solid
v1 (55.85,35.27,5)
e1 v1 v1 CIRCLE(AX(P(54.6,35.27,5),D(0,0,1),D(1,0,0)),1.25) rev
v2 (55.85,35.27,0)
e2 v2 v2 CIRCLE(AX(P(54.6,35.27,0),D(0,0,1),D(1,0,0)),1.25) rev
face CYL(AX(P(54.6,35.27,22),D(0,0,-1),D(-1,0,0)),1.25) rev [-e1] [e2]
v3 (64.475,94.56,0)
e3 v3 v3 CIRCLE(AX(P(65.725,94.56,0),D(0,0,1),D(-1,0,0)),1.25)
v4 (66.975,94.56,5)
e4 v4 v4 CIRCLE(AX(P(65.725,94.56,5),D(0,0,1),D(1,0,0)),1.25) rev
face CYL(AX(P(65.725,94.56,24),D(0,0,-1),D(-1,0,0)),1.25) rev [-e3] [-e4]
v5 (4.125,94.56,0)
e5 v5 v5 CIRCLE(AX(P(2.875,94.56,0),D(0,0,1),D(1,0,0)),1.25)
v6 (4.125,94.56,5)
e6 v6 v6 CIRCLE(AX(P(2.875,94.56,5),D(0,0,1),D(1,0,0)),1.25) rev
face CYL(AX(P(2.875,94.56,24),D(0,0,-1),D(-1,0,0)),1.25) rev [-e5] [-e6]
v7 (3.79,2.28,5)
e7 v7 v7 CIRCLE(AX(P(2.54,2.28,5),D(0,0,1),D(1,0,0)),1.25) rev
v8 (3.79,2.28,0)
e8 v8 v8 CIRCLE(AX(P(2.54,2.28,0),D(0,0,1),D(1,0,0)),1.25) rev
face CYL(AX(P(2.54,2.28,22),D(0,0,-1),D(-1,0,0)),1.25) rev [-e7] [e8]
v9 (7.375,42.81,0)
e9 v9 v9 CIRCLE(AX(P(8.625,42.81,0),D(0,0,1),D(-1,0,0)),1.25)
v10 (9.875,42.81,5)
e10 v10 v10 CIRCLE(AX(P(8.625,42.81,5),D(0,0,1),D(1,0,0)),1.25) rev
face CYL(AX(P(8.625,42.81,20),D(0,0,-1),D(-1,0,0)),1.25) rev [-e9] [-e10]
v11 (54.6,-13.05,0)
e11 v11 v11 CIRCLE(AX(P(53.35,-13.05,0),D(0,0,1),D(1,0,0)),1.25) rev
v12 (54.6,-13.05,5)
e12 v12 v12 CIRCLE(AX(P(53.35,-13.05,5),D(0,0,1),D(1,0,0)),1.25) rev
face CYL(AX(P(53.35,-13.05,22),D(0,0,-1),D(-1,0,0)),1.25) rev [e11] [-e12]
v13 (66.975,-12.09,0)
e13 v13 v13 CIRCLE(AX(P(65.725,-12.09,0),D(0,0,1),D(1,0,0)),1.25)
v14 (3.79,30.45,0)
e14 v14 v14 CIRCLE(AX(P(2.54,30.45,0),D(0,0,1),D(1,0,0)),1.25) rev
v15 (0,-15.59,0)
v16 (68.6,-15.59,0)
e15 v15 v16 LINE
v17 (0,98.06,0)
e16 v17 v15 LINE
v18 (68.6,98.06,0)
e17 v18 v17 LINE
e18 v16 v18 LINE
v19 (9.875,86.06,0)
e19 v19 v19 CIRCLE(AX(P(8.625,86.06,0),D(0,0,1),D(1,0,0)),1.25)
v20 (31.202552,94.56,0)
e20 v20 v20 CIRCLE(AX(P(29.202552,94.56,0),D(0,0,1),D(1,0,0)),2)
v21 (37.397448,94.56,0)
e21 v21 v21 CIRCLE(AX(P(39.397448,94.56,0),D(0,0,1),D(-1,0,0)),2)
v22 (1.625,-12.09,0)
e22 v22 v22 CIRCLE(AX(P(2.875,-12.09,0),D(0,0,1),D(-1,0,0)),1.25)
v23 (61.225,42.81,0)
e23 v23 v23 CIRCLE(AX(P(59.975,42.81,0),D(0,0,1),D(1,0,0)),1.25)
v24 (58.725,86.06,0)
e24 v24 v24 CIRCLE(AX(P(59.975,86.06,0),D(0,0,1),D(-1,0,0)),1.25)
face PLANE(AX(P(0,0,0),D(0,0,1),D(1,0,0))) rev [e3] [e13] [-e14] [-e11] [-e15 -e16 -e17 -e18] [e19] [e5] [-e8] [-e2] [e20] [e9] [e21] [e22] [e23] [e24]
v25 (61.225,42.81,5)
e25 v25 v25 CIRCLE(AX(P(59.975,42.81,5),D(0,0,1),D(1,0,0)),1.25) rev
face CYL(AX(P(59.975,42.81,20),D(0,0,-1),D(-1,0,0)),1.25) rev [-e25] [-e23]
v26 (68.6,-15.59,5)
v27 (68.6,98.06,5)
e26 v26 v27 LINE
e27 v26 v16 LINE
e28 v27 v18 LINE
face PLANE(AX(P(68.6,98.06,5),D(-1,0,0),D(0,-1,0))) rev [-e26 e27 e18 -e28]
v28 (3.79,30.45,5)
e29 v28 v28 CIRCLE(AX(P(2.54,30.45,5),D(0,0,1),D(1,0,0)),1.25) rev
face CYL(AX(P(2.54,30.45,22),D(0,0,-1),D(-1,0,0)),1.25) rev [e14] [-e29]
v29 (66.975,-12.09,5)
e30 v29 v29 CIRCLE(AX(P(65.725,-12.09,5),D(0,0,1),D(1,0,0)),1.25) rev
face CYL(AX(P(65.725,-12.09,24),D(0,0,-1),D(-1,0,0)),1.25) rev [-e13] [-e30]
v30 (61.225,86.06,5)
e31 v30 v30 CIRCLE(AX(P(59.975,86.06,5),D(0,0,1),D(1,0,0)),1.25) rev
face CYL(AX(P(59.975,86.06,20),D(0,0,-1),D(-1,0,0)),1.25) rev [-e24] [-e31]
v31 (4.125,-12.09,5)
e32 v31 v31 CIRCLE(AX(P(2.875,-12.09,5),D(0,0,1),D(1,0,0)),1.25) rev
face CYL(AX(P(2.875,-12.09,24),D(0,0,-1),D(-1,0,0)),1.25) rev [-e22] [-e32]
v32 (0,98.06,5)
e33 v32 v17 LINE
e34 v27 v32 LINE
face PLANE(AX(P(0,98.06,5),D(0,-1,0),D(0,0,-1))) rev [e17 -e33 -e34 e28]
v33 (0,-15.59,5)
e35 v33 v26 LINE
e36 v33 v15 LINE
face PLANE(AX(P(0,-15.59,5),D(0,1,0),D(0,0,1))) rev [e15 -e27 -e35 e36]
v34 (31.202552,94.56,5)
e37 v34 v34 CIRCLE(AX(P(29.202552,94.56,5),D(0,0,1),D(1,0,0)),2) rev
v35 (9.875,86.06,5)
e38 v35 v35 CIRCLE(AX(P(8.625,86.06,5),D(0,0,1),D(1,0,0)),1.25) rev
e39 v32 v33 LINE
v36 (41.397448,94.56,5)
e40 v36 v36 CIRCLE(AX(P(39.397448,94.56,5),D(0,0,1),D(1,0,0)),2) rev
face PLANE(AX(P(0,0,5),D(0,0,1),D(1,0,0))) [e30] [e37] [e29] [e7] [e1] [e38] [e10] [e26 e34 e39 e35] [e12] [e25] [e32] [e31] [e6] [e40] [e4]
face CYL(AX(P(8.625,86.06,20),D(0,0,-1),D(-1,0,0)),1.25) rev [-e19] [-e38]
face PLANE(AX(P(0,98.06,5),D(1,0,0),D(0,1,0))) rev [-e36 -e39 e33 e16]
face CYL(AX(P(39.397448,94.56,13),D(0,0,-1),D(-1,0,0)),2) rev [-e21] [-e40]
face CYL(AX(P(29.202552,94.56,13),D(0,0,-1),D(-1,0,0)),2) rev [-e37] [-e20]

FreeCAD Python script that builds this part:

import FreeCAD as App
import Part
import Sketcher
Q = App.Units.Quantity


def add_polygon(sketch, points):
    """Adds a closed chain of lines whose ends are joined by coincident constraints."""
    first, n = sketch.GeometryCount, len(points)
    for a, b in zip(points, points[1:] + points[:1]):
        sketch.addGeometry(Part.LineSegment(App.Vector(*a, 0), App.Vector(*b, 0)), False)
    for i in range(n):
        sketch.addConstraint(Sketcher.Constraint("Coincident", first + i, 2, first + (i + 1) % n, 1))

doc = App.newDocument("Part")
body = doc.addObject("PartDesign::Body", "Body")

sketch1 = body.newObject("Sketcher::SketchObject", "Sketch")
sketch1.AttachmentSupport = (doc.getObject("XY_Plane"), [""])
sketch1.MapMode = "FlatFace"
add_polygon(sketch1, [(0, 98), (0, -16), (69, -16), (69, 98)])
sketch1.addConstraint([
    Sketcher.Constraint("Vertical", 0),
    Sketcher.Constraint("Horizontal", 1),
    Sketcher.Constraint("Vertical", 2),
    Sketcher.Constraint("Horizontal", 3),
    Sketcher.Constraint("PointOnObject", 0, 2, -2),
    Sketcher.Constraint("DistanceX", 1, 1, 1, 2, Q("68.6 mm")),
    Sketcher.Constraint("DistanceY", 0, 2, 0, 1, Q("113.65 mm")),
    Sketcher.Constraint("DistanceY", 0, 2, -1, 1, Q("15.59 mm")),
])
pad1 = body.newObject("PartDesign::Pad", "Pad")
pad1.Profile = sketch1
pad1.Length = 5

sketch2 = body.newObject("Sketcher::SketchObject", "Sketch001")
sketch2.AttachmentSupport = (doc.getObject("XY_Plane"), [""])
sketch2.MapMode = "FlatFace"
sketch2.addGeometry([
    Part.Circle(App.Vector(2.5, 2.3, 0), App.Vector(0, 0, 1), 1.2),
    Part.Circle(App.Vector(2.5, 30.5, 0), App.Vector(0, 0, 1), 1.2),
    Part.Circle(App.Vector(54.6, 35.3, 0), App.Vector(0, 0, 1), 1.2),
    Part.Circle(App.Vector(53.4, -13, 0), App.Vector(0, 0, 1), 1.2),
], False)
sketch2.addConstraint([
    Sketcher.Constraint("Equal", 0, 1),
    Sketcher.Constraint("Equal", 1, 2),
    Sketcher.Constraint("Equal", 2, 3),
    Sketcher.Constraint("Vertical", 0, 3, 1, 3),
    Sketcher.Constraint("Diameter", 0, Q("2.5 mm")),
    Sketcher.Constraint("DistanceX", -1, 1, 2, 3, Q("54.6 mm")),
    Sketcher.Constraint("DistanceY", 3, 3, 1, 3, Q("43.5 mm")),
    Sketcher.Constraint("DistanceX", -1, 1, 0, 3, Q("2.54 mm")),
    Sketcher.Constraint("DistanceY", -1, 1, 0, 3, Q("2.28 mm")),
    Sketcher.Constraint("DistanceY", -1, 1, 1, 3, Q("30.45 mm")),
    Sketcher.Constraint("DistanceY", -1, 1, 2, 3, Q("35.27 mm")),
    Sketcher.Constraint("DistanceX", -1, 1, 3, 3, Q("53.35 mm")),
])
pocket1 = body.newObject("PartDesign::Pocket", "Pocket")
pocket1.Profile = sketch2
pocket1.Type = "ThroughAll"
pocket1.Midplane = True

sketch3 = body.newObject("Sketcher::SketchObject", "Sketch002")
sketch3.AttachmentSupport = (doc.getObject("XY_Plane"), [""])
sketch3.MapMode = "FlatFace"
sketch3.addGeometry([
    Part.Circle(App.Vector(8.6, 86.1, 0), App.Vector(0, 0, 1), 1.2),
    Part.Circle(App.Vector(60, 86.1, 0), App.Vector(0, 0, 1), 1.2),
    Part.Circle(App.Vector(8.6, 42.8, 0), App.Vector(0, 0, 1), 1.2),
    Part.Circle(App.Vector(60, 42.8, 0), App.Vector(0, 0, 1), 1.2),
], False)
sketch3.addConstraint([
    Sketcher.Constraint("Equal", 0, 1),
    Sketcher.Constraint("Equal", 1, 2),
    Sketcher.Constraint("Equal", 2, 3),
    Sketcher.Constraint("Horizontal", 0, 3, 1, 3),
    Sketcher.Constraint("Horizontal", 2, 3, 3, 3),
    Sketcher.Constraint("Vertical", 0, 3, 2, 3),
    Sketcher.Constraint("Vertical", 1, 3, 3, 3),
    Sketcher.Constraint("Diameter", 0, Q("2.5 mm")),
    Sketcher.Constraint("DistanceY", -1, 1, 0, 3, Q("86.06 mm")),
    Sketcher.Constraint("DistanceY", -1, 1, 2, 3, Q("42.81 mm")),
    Sketcher.Constraint("DistanceX", 0, 3, 1, 3, Q("51.35 mm")),
    Sketcher.Constraint("DistanceX", -1, 1, 0, 3, Q("8.625 mm")),
])
pocket2 = body.newObject("PartDesign::Pocket", "Pocket001")
pocket2.Profile = sketch3
pocket2.Length = 20
pocket2.Reversed = True

sketch4 = body.newObject("Sketcher::SketchObject", "Sketch003")
sketch4.AttachmentSupport = (doc.getObject("XY_Plane"), [""])
sketch4.MapMode = "FlatFace"
sketch4.addGeometry([
    Part.Circle(App.Vector(29.2, 94.6, 0), App.Vector(0, 0, 1), 2),
    Part.Circle(App.Vector(39.4, 94.6, 0), App.Vector(0, 0, 1), 2),
], False)
sketch4.addConstraint([
    Sketcher.Constraint("Equal", 0, 1),
    Sketcher.Constraint("Horizontal", 0, 3, 1, 3),
    Sketcher.Constraint("Diameter", 0, Q("4 mm")),
    Sketcher.Constraint("DistanceY", -1, 1, 0, 3, Q("94.56 mm")),
    Sketcher.Constraint("DistanceX", -1, 1, 0, 3, Q("29.202552 mm")),
    Sketcher.Constraint("DistanceX", -1, 1, 1, 3, Q("39.397448 mm")),
])
pocket3 = body.newObject("PartDesign::Pocket", "Pocket002")
pocket3.Profile = sketch4
pocket3.Length = 13
pocket3.Reversed = True

sketch5 = body.newObject("Sketcher::SketchObject", "Sketch004")
sketch5.AttachmentSupport = (doc.getObject("XY_Plane"), [""])
sketch5.MapMode = "FlatFace"
sketch5.addGeometry([
    Part.Circle(App.Vector(2.9, 94.6, 0), App.Vector(0, 0, 1), 1.2),
    Part.Circle(App.Vector(65.7, 94.6, 0), App.Vector(0, 0, 1), 1.2),
    Part.Circle(App.Vector(65.7, -12.1, 0), App.Vector(0, 0, 1), 1.2),
    Part.Circle(App.Vector(2.9, -12.1, 0), App.Vector(0, 0, 1), 1.2),
], False)
sketch5.addConstraint([
    Sketcher.Constraint("Equal", 0, 1),
    Sketcher.Constraint("Equal", 1, 2),
    Sketcher.Constraint("Equal", 2, 3),
    Sketcher.Constraint("Horizontal", 0, 3, 1, 3),
    Sketcher.Constraint("Horizontal", 2, 3, 3, 3),
    Sketcher.Constraint("Vertical", 1, 3, 2, 3),
    Sketcher.Constraint("Vertical", 0, 3, 3, 3),
    Sketcher.Constraint("Diameter", 0, Q("2.5 mm")),
    Sketcher.Constraint("DistanceY", -1, 1, 0, 3, Q("94.56 mm")),
    Sketcher.Constraint("DistanceY", 2, 3, -1, 1, Q("12.09 mm")),
    Sketcher.Constraint("DistanceX", 0, 3, 1, 3, Q("62.85 mm")),
    Sketcher.Constraint("DistanceX", -1, 1, 0, 3, Q("2.875 mm")),
])
pocket4 = body.newObject("PartDesign::Pocket", "Pocket003")
pocket4.Profile = sketch5
pocket4.Length = 24
pocket4.Reversed = True

doc.recompute()
